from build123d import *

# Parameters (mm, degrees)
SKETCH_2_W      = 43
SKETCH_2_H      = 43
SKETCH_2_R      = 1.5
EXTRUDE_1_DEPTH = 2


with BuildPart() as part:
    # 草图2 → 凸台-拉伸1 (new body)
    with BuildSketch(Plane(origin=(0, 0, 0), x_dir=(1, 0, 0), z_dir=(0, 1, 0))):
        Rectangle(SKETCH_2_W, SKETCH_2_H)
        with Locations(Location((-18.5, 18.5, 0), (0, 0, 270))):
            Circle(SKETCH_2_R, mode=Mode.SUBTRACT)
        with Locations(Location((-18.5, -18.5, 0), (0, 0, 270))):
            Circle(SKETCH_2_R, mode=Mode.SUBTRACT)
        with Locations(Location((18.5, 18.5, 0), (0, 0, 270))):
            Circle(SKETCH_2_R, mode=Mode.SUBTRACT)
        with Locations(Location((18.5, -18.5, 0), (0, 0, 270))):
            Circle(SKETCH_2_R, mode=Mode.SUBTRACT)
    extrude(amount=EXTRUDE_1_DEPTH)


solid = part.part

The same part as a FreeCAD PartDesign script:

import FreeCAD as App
import Part
import Sketcher
from FreeCAD import Vector


def add_polygon(sketch, points):
    """Adds a closed chain of lines whose ends are joined by coincident constraints."""
    first, n = sketch.GeometryCount, len(points)
    for a, b in zip(points, points[1:] + points[:1]):
        sketch.addGeometry(Part.LineSegment(App.Vector(*a, 0), App.Vector(*b, 0)), False)
    for i in range(n):
        sketch.addConstraint(Sketcher.Constraint("Coincident", first + i, 2, first + (i + 1) % n, 1))

doc = App.newDocument("Part")
body = doc.addObject("PartDesign::Body", "Body")

sketch1 = body.newObject("Sketcher::SketchObject", "Sketch")
sketch1.AttachmentSupport = (doc.getObject("XZ_Plane"), [""])
sketch1.MapMode = "FlatFace"
add_polygon(sketch1, [(-21.5, -21.5), (-21.5, 21.5), (21.5, 21.5), (21.5, -21.5)])
sketch1.addGeometry(Part.Circle(Vector(-18.5, 18.5, 0), Vector(0, 0, 1), 1.5), False)
sketch1.addGeometry(Part.Circle(Vector(18.5, 18.5, 0), Vector(0, 0, 1), 1.5), False)
sketch1.addGeometry(Part.Circle(Vector(-18.5, -18.5, 0), Vector(0, 0, 1), 1.5), False)
sketch1.addGeometry(Part.Circle(Vector(18.5, -18.5, 0), Vector(0, 0, 1), 1.5), False)
sketch1.addConstraint([
    Sketcher.Constraint("Vertical", 0),
    Sketcher.Constraint("Horizontal", 1),
    Sketcher.Constraint("Vertical", 2),
    Sketcher.Constraint("Horizontal", 3),
    Sketcher.Constraint("Equal", 4, 5),
    Sketcher.Constraint("Equal", 5, 6),
    Sketcher.Constraint("Equal", 6, 7),
    Sketcher.Constraint("Symmetric", 5, 3, 6, 3, -1, 1),
    Sketcher.Constraint("Symmetric", 4, 3, 7, 3, -1, 1),
    Sketcher.Constraint("Symmetric", 0, 2, 2, 2, -1, 1),
    Sketcher.Constraint("Symmetric", 4, 3, 5, 3, -2),
    Sketcher.Constraint("Equal", 3, 0),
    Sketcher.Constraint("Diameter", 4, 3.0),
    Sketcher.Constraint("DistanceX", 1, 1, 1, 2, 43.0),
    Sketcher.Constraint("DistanceX", 4, 3, 5, 3, 37.0),
    Sketcher.Constraint("DistanceY", 6, 3, 4, 3, 37.0),
])
pad1 = body.newObject("PartDesign::Pad", "Pad")
pad1.Profile = sketch1
pad1.Length = 2
pad1.Reversed = True

doc.recompute()
